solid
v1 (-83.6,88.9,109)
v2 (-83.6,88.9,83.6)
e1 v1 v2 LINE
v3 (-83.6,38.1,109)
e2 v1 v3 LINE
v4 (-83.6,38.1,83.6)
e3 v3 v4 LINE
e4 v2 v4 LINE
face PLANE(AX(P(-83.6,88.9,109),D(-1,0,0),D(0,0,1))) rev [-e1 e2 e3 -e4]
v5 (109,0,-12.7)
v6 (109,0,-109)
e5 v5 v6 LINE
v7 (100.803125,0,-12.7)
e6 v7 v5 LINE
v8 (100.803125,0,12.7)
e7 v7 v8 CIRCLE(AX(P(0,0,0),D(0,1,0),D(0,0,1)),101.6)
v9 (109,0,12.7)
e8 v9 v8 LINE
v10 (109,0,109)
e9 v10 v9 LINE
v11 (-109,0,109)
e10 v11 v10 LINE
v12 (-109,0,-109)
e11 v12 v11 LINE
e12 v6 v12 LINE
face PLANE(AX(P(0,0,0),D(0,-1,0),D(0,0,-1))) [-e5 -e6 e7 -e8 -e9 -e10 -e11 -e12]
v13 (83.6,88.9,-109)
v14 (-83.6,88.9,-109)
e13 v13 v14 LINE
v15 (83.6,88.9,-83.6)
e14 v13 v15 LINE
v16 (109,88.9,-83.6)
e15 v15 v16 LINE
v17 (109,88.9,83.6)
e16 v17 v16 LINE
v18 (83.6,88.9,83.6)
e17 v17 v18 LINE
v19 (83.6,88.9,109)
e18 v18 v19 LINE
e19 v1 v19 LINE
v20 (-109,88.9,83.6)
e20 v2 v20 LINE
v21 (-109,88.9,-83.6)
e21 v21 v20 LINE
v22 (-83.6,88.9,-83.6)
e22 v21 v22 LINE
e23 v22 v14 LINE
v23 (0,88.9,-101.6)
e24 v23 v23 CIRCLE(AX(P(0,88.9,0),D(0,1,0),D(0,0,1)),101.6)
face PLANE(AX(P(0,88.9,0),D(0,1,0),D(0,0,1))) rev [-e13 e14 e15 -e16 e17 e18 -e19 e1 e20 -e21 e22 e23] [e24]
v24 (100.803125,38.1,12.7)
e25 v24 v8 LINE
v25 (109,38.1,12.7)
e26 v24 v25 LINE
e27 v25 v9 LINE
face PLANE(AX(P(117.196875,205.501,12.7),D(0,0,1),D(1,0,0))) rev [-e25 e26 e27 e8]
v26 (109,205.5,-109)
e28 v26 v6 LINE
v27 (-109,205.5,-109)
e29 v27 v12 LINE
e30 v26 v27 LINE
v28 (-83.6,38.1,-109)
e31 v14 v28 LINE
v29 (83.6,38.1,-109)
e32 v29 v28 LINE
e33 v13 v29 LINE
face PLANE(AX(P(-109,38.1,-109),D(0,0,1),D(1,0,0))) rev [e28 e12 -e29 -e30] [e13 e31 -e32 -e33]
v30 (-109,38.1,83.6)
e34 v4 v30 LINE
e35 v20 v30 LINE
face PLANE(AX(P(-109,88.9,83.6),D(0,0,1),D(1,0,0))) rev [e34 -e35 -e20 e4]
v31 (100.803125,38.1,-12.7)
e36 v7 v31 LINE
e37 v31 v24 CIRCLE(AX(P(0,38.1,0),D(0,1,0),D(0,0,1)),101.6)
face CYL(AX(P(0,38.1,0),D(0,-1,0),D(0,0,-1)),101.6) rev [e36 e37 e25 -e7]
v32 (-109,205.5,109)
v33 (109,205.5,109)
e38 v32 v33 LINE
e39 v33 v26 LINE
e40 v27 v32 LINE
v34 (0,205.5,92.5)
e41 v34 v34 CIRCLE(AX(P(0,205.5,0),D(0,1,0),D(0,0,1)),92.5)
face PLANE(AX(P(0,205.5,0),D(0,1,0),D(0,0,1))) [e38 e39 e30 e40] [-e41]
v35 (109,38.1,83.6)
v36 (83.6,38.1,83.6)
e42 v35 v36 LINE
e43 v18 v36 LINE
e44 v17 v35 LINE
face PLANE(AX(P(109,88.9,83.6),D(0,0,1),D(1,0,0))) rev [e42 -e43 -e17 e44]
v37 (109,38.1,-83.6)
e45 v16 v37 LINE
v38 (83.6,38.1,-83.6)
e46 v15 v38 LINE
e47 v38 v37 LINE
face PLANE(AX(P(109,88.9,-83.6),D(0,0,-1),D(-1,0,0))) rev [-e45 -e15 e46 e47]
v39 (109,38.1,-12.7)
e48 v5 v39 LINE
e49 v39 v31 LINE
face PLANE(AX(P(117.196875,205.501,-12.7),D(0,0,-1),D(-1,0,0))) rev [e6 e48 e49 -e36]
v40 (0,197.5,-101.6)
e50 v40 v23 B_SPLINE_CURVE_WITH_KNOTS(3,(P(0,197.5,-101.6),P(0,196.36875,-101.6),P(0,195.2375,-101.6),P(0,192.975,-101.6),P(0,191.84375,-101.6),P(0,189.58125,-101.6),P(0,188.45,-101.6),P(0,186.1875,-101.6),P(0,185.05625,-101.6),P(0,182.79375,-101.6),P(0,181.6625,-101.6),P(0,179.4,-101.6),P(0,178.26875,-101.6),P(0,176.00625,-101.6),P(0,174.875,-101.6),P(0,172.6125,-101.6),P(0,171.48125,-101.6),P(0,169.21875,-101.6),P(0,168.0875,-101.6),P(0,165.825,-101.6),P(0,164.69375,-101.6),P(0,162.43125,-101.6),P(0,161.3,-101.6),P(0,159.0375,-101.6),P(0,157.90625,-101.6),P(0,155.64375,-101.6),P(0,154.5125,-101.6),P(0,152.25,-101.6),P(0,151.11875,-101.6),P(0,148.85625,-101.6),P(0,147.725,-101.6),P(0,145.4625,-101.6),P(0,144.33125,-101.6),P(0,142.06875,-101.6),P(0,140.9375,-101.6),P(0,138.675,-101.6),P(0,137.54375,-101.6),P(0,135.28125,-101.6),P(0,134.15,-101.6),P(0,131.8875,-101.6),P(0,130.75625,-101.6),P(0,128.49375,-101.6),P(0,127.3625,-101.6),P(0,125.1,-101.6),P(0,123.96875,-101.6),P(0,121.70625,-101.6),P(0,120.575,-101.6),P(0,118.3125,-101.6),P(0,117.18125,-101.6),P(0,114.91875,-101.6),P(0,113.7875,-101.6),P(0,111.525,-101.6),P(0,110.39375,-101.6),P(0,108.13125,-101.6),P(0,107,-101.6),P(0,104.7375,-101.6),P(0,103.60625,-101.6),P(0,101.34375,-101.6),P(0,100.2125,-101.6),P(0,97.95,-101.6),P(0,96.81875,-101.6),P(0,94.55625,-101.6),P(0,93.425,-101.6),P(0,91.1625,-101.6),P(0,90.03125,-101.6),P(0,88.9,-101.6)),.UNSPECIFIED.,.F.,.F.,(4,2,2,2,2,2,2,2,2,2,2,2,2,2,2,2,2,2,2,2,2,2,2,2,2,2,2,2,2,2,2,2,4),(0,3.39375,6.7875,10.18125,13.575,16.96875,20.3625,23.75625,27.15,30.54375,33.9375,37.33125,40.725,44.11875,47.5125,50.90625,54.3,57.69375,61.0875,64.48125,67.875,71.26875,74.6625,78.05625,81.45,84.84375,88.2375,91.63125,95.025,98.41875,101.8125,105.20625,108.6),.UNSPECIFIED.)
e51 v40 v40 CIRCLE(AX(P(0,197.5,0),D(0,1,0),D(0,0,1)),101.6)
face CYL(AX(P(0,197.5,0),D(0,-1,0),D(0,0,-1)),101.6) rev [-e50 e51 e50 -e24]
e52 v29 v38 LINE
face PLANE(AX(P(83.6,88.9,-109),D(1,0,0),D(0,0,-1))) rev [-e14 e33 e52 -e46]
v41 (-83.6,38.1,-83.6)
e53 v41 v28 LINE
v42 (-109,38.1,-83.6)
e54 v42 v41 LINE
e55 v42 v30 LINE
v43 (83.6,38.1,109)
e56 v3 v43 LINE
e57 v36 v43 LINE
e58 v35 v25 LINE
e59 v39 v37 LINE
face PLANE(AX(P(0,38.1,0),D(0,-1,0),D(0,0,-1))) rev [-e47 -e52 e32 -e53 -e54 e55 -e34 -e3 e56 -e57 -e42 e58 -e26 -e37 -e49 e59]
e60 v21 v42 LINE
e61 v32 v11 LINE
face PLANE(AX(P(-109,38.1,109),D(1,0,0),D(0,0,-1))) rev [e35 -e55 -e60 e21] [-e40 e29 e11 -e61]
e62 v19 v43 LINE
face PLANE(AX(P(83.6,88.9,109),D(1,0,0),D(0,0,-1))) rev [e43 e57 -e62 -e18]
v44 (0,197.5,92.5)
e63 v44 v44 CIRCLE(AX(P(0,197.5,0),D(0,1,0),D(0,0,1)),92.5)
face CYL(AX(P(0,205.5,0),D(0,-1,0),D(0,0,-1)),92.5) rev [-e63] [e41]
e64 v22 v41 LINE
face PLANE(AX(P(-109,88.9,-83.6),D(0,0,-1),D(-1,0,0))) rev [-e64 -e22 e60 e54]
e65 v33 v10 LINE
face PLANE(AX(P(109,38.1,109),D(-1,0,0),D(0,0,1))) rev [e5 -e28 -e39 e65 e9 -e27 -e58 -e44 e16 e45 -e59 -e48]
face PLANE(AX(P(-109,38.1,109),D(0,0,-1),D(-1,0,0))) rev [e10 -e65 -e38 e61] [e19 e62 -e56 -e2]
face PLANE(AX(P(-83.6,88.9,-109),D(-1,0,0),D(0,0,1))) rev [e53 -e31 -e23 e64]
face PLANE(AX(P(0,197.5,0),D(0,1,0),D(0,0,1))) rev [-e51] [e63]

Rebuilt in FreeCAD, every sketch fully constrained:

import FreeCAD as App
import Part
import Sketcher
from FreeCAD import Vector


def add_polygon(sketch, points):
    """Adds a closed chain of lines whose ends are joined by coincident constraints."""
    first, n = sketch.GeometryCount, len(points)
    for a, b in zip(points, points[1:] + points[:1]):
        sketch.addGeometry(Part.LineSegment(App.Vector(*a, 0), App.Vector(*b, 0)), False)
    for i in range(n):
        sketch.addConstraint(Sketcher.Constraint("Coincident", first + i, 2, first + (i + 1) % n, 1))

doc = App.newDocument("Part")
body = doc.addObject("PartDesign::Body", "Body")

# Sketch on XZ plane
sketch1 = body.newObject("Sketcher::SketchObject", "Sketch")
sketch1.AttachmentSupport = (doc.getObject("XZ_Plane"), [""])
sketch1.MapMode = "FlatFace"
add_polygon(sketch1, [(-109, -109), (-109, 109), (109, 109), (109, -109)])  # lines 0-3
sketch1.addGeometry(Part.Circle(Vector(0, 0, 0), Vector(0, 0, 1), 102), False)  # 4
sketch1.addConstraint([
    Sketcher.Constraint("Vertical", 0),
    Sketcher.Constraint("Horizontal", 1),
    Sketcher.Constraint("Vertical", 2),
    Sketcher.Constraint("Horizontal", 3),
    Sketcher.Constraint("Coincident", 4, 3, -1, 1),
    Sketcher.Constraint("Symmetric", 0, 2, 2, 2, -1, 1),
    Sketcher.Constraint("Equal", 3, 0),
    Sketcher.Constraint("Diameter", 4, 203.2),
    Sketcher.Constraint("DistanceX", 1, 1, 1, 2, 218.0),
])
pad1 = body.newObject("PartDesign::Pad", "Pad")
pad1.Profile = sketch1
pad1.Length = 38.1
pad1.Reversed = True

# Sketch on XZ plane
sketch2 = body.newObject("Sketcher::SketchObject", "Sketch001")
sketch2.AttachmentSupport = (doc.getObject("XZ_Plane"), [""])
sketch2.MapMode = "FlatFace"
sketch2.AttachmentOffset = App.Placement(Vector(0, 0, -38.1), App.Rotation())
add_polygon(sketch2, [(-109, -109), (-109, -84), (-84, -84), (-84, -109)])  # lines 0-3
add_polygon(sketch2, [(84, -109), (84, -84), (109, -84), (109, -109)])  # lines 4-7
add_polygon(sketch2, [(84, 84), (84, 109), (109, 109), (109, 84)])  # lines 8-11
add_polygon(sketch2, [(-109, 84), (-109, 109), (-84, 109), (-84, 84)])  # lines 12-15
sketch2.addConstraint([
    Sketcher.Constraint("Vertical", 0),
    Sketcher.Constraint("Horizontal", 1),
    Sketcher.Constraint("Vertical", 2),
    Sketcher.Constraint("Horizontal", 3),
    Sketcher.Constraint("Vertical", 4),
    Sketcher.Constraint("Horizontal", 5),
    Sketcher.Constraint("Vertical", 6),
    Sketcher.Constraint("Horizontal", 7),
    Sketcher.Constraint("Vertical", 8),
    Sketcher.Constraint("Horizontal", 9),
    Sketcher.Constraint("Vertical", 10),
    Sketcher.Constraint("Horizontal", 11),
    Sketcher.Constraint("Vertical", 12),
    Sketcher.Constraint("Horizontal", 13),
    Sketcher.Constraint("Vertical", 14),
    Sketcher.Constraint("Horizontal", 15),
    Sketcher.Constraint("Symmetric", 2, 2, 8, 2, -1, 1),
    Sketcher.Constraint("Symmetric", 0, 2, 10, 2, -1, 1),
    Sketcher.Constraint("Symmetric", 6, 2, 12, 2, -1, 1),
    Sketcher.Constraint("Symmetric", 4, 2, 14, 2, -1, 1),
    Sketcher.Constraint("Symmetric", 1, 2, 4, 2, -2),
    Sketcher.Constraint("Symmetric", 3, 2, 6, 2, -2),
    Sketcher.Constraint("Equal", 15, 0),
    Sketcher.Constraint("DistanceX", 1, 1, 1, 2, 25.4),
    Sketcher.Constraint("DistanceX", 0, 2, -1, 1, 109.0),
    Sketcher.Constraint("DistanceY", 2, 2, -1, 1, 109.0),
])
pad2 = body.newObject("PartDesign::Pad", "Pad001")
pad2.Profile = sketch2
pad2.Length = 50.8
pad2.Reversed = True

# Sketch on XZ plane
sketch3 = body.newObject("Sketcher::SketchObject", "Sketch002")
sketch3.AttachmentSupport = (doc.getObject("XZ_Plane"), [""])
sketch3.MapMode = "FlatFace"
sketch3.AttachmentOffset = App.Placement(Vector(0, 0, -88.9), App.Rotation())
add_polygon(sketch3, [(-109, -109), (-109, 109), (109, 109), (109, -109)])  # lines 0-3
sketch3.addGeometry(Part.Circle(Vector(0, 0, 0), Vector(0, 0, 1), 102), False)  # 4
sketch3.addConstraint([
    Sketcher.Constraint("Vertical", 0),
    Sketcher.Constraint("Horizontal", 1),
    Sketcher.Constraint("Vertical", 2),
    Sketcher.Constraint("Horizontal", 3),
    Sketcher.Constraint("Coincident", 4, 3, -1, 1),
    Sketcher.Constraint("Symmetric", 0, 2, 2, 2, -1, 1),
    Sketcher.Constraint("Equal", 3, 0),
    Sketcher.Constraint("Diameter", 4, 203.2),
    Sketcher.Constraint("DistanceX", 1, 1, 1, 2, 218.0),
])
pad3 = body.newObject("PartDesign::Pad", "Pad002")
pad3.Profile = sketch3
pad3.Length = 108.6
pad3.Reversed = True

# Sketch on XZ plane
sketch4 = body.newObject("Sketcher::SketchObject", "Sketch003")
sketch4.AttachmentSupport = (doc.getObject("XZ_Plane"), [""])
sketch4.MapMode = "FlatFace"
sketch4.AttachmentOffset = App.Placement(Vector(0, 0, -197.5), App.Rotation())
add_polygon(sketch4, [(-109, -109), (-109, 109), (109, 109), (109, -109)])  # lines 0-3
sketch4.addGeometry(Part.Circle(Vector(0, 0, 0), Vector(0, 0, 1), 92), False)  # 4
sketch4.addConstraint([
    Sketcher.Constraint("Vertical", 0),
    Sketcher.Constraint("Horizontal", 1),
    Sketcher.Constraint("Vertical", 2),
    Sketcher.Constraint("Horizontal", 3),
    Sketcher.Constraint("Coincident", 4, 3, -1, 1),
    Sketcher.Constraint("Symmetric", 0, 2, 2, 2, -1, 1),
    Sketcher.Constraint("Equal", 3, 0),
    Sketcher.Constraint("Diameter", 4, 185.0),
    Sketcher.Constraint("DistanceX", 1, 1, 1, 2, 218.0),
])
pad4 = body.newObject("PartDesign::Pad", "Pad003")
pad4.Profile = sketch4
pad4.Length = 8
pad4.Reversed = True

# Sketch on XZ plane
sketch5 = body.newObject("Sketcher::SketchObject", "Sketch004")
sketch5.AttachmentSupport = (doc.getObject("XZ_Plane"), [""])
sketch5.MapMode = "FlatFace"
add_polygon(sketch5, [(101, 13), (101, -13), (117, -13), (117, 13)])  # lines 0-3
sketch5.addConstraint([
    Sketcher.Constraint("Vertical", 0),
    Sketcher.Constraint("Horizontal", 1),
    Sketcher.Constraint("Vertical", 2),
    Sketcher.Constraint("Horizontal", 3),
    Sketcher.Constraint("DistanceY", 0, 2, 0, 1, 25.4),
    Sketcher.Constraint("DistanceY", 0, 2, -1, 1, 12.7),
    Sketcher.Constraint("DistanceX", 1, 1, 1, 2, 16.39375),
    Sketcher.Constraint("DistanceX", -1, 1, 0, 2, 100.803125),
])
pocket1 = body.newObject("PartDesign::Pocket", "Pocket")
pocket1.Profile = sketch5
pocket1.Type = "UpToFirst"

doc.recompute()
